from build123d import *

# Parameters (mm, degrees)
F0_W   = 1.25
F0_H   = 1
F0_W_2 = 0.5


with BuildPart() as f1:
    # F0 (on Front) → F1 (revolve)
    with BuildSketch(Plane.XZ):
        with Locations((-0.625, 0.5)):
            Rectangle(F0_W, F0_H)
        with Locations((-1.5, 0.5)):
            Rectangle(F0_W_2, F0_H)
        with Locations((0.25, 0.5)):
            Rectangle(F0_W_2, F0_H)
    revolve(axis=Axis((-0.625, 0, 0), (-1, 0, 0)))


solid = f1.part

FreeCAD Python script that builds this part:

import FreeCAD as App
import Part
import Sketcher

V = App.Vector

doc = App.newDocument("Part")
body = doc.addObject("PartDesign::Body", "Body")

# Sketch on XZ plane
sketch1 = body.newObject("Sketcher::SketchObject", "Sketch")
sketch1.AttachmentSupport = (doc.getObject("XZ_Plane"), [""])
sketch1.MapMode = "FlatFace"
sketch1.addGeometry([
    Part.LineSegment(V(-1.75, 1, 0), V(-1.75, 0, 0)),
    Part.LineSegment(V(-1.75, 0, 0), V(0.5, 0, 0)),
    Part.LineSegment(V(0.5, 0, 0), V(0.5, 1, 0)),
    Part.LineSegment(V(0.5, 1, 0), V(-1.75, 1, 0)),
], False)
sketch1.addConstraint([
    Sketcher.Constraint("Coincident", 0, 2, 1, 1),
    Sketcher.Constraint("Coincident", 1, 2, 2, 1),
    Sketcher.Constraint("Coincident", 2, 2, 3, 1),
    Sketcher.Constraint("Coincident", 3, 2, 0, 1),
    Sketcher.Constraint("Vertical", 0),
    Sketcher.Constraint("Horizontal", 1),
    Sketcher.Constraint("Vertical", 2),
    Sketcher.Constraint("Horizontal", 3),
    Sketcher.Constraint("PointOnObject", 0, 2, -1),
    Sketcher.Constraint("DistanceY", 0, 2, 0, 1, 1.0),
    Sketcher.Constraint("DistanceX", 1, 1, 1, 2, 2.25),
    Sketcher.Constraint("DistanceX", -1, 1, 1, 2, 0.5),
])
revolution = body.newObject("PartDesign::Revolution", "Revolution")
revolution.Profile = sketch1
revolution.ReferenceAxis = (sketch1, ["H_Axis"])
revolution.Angle = 360

doc.recompute()
